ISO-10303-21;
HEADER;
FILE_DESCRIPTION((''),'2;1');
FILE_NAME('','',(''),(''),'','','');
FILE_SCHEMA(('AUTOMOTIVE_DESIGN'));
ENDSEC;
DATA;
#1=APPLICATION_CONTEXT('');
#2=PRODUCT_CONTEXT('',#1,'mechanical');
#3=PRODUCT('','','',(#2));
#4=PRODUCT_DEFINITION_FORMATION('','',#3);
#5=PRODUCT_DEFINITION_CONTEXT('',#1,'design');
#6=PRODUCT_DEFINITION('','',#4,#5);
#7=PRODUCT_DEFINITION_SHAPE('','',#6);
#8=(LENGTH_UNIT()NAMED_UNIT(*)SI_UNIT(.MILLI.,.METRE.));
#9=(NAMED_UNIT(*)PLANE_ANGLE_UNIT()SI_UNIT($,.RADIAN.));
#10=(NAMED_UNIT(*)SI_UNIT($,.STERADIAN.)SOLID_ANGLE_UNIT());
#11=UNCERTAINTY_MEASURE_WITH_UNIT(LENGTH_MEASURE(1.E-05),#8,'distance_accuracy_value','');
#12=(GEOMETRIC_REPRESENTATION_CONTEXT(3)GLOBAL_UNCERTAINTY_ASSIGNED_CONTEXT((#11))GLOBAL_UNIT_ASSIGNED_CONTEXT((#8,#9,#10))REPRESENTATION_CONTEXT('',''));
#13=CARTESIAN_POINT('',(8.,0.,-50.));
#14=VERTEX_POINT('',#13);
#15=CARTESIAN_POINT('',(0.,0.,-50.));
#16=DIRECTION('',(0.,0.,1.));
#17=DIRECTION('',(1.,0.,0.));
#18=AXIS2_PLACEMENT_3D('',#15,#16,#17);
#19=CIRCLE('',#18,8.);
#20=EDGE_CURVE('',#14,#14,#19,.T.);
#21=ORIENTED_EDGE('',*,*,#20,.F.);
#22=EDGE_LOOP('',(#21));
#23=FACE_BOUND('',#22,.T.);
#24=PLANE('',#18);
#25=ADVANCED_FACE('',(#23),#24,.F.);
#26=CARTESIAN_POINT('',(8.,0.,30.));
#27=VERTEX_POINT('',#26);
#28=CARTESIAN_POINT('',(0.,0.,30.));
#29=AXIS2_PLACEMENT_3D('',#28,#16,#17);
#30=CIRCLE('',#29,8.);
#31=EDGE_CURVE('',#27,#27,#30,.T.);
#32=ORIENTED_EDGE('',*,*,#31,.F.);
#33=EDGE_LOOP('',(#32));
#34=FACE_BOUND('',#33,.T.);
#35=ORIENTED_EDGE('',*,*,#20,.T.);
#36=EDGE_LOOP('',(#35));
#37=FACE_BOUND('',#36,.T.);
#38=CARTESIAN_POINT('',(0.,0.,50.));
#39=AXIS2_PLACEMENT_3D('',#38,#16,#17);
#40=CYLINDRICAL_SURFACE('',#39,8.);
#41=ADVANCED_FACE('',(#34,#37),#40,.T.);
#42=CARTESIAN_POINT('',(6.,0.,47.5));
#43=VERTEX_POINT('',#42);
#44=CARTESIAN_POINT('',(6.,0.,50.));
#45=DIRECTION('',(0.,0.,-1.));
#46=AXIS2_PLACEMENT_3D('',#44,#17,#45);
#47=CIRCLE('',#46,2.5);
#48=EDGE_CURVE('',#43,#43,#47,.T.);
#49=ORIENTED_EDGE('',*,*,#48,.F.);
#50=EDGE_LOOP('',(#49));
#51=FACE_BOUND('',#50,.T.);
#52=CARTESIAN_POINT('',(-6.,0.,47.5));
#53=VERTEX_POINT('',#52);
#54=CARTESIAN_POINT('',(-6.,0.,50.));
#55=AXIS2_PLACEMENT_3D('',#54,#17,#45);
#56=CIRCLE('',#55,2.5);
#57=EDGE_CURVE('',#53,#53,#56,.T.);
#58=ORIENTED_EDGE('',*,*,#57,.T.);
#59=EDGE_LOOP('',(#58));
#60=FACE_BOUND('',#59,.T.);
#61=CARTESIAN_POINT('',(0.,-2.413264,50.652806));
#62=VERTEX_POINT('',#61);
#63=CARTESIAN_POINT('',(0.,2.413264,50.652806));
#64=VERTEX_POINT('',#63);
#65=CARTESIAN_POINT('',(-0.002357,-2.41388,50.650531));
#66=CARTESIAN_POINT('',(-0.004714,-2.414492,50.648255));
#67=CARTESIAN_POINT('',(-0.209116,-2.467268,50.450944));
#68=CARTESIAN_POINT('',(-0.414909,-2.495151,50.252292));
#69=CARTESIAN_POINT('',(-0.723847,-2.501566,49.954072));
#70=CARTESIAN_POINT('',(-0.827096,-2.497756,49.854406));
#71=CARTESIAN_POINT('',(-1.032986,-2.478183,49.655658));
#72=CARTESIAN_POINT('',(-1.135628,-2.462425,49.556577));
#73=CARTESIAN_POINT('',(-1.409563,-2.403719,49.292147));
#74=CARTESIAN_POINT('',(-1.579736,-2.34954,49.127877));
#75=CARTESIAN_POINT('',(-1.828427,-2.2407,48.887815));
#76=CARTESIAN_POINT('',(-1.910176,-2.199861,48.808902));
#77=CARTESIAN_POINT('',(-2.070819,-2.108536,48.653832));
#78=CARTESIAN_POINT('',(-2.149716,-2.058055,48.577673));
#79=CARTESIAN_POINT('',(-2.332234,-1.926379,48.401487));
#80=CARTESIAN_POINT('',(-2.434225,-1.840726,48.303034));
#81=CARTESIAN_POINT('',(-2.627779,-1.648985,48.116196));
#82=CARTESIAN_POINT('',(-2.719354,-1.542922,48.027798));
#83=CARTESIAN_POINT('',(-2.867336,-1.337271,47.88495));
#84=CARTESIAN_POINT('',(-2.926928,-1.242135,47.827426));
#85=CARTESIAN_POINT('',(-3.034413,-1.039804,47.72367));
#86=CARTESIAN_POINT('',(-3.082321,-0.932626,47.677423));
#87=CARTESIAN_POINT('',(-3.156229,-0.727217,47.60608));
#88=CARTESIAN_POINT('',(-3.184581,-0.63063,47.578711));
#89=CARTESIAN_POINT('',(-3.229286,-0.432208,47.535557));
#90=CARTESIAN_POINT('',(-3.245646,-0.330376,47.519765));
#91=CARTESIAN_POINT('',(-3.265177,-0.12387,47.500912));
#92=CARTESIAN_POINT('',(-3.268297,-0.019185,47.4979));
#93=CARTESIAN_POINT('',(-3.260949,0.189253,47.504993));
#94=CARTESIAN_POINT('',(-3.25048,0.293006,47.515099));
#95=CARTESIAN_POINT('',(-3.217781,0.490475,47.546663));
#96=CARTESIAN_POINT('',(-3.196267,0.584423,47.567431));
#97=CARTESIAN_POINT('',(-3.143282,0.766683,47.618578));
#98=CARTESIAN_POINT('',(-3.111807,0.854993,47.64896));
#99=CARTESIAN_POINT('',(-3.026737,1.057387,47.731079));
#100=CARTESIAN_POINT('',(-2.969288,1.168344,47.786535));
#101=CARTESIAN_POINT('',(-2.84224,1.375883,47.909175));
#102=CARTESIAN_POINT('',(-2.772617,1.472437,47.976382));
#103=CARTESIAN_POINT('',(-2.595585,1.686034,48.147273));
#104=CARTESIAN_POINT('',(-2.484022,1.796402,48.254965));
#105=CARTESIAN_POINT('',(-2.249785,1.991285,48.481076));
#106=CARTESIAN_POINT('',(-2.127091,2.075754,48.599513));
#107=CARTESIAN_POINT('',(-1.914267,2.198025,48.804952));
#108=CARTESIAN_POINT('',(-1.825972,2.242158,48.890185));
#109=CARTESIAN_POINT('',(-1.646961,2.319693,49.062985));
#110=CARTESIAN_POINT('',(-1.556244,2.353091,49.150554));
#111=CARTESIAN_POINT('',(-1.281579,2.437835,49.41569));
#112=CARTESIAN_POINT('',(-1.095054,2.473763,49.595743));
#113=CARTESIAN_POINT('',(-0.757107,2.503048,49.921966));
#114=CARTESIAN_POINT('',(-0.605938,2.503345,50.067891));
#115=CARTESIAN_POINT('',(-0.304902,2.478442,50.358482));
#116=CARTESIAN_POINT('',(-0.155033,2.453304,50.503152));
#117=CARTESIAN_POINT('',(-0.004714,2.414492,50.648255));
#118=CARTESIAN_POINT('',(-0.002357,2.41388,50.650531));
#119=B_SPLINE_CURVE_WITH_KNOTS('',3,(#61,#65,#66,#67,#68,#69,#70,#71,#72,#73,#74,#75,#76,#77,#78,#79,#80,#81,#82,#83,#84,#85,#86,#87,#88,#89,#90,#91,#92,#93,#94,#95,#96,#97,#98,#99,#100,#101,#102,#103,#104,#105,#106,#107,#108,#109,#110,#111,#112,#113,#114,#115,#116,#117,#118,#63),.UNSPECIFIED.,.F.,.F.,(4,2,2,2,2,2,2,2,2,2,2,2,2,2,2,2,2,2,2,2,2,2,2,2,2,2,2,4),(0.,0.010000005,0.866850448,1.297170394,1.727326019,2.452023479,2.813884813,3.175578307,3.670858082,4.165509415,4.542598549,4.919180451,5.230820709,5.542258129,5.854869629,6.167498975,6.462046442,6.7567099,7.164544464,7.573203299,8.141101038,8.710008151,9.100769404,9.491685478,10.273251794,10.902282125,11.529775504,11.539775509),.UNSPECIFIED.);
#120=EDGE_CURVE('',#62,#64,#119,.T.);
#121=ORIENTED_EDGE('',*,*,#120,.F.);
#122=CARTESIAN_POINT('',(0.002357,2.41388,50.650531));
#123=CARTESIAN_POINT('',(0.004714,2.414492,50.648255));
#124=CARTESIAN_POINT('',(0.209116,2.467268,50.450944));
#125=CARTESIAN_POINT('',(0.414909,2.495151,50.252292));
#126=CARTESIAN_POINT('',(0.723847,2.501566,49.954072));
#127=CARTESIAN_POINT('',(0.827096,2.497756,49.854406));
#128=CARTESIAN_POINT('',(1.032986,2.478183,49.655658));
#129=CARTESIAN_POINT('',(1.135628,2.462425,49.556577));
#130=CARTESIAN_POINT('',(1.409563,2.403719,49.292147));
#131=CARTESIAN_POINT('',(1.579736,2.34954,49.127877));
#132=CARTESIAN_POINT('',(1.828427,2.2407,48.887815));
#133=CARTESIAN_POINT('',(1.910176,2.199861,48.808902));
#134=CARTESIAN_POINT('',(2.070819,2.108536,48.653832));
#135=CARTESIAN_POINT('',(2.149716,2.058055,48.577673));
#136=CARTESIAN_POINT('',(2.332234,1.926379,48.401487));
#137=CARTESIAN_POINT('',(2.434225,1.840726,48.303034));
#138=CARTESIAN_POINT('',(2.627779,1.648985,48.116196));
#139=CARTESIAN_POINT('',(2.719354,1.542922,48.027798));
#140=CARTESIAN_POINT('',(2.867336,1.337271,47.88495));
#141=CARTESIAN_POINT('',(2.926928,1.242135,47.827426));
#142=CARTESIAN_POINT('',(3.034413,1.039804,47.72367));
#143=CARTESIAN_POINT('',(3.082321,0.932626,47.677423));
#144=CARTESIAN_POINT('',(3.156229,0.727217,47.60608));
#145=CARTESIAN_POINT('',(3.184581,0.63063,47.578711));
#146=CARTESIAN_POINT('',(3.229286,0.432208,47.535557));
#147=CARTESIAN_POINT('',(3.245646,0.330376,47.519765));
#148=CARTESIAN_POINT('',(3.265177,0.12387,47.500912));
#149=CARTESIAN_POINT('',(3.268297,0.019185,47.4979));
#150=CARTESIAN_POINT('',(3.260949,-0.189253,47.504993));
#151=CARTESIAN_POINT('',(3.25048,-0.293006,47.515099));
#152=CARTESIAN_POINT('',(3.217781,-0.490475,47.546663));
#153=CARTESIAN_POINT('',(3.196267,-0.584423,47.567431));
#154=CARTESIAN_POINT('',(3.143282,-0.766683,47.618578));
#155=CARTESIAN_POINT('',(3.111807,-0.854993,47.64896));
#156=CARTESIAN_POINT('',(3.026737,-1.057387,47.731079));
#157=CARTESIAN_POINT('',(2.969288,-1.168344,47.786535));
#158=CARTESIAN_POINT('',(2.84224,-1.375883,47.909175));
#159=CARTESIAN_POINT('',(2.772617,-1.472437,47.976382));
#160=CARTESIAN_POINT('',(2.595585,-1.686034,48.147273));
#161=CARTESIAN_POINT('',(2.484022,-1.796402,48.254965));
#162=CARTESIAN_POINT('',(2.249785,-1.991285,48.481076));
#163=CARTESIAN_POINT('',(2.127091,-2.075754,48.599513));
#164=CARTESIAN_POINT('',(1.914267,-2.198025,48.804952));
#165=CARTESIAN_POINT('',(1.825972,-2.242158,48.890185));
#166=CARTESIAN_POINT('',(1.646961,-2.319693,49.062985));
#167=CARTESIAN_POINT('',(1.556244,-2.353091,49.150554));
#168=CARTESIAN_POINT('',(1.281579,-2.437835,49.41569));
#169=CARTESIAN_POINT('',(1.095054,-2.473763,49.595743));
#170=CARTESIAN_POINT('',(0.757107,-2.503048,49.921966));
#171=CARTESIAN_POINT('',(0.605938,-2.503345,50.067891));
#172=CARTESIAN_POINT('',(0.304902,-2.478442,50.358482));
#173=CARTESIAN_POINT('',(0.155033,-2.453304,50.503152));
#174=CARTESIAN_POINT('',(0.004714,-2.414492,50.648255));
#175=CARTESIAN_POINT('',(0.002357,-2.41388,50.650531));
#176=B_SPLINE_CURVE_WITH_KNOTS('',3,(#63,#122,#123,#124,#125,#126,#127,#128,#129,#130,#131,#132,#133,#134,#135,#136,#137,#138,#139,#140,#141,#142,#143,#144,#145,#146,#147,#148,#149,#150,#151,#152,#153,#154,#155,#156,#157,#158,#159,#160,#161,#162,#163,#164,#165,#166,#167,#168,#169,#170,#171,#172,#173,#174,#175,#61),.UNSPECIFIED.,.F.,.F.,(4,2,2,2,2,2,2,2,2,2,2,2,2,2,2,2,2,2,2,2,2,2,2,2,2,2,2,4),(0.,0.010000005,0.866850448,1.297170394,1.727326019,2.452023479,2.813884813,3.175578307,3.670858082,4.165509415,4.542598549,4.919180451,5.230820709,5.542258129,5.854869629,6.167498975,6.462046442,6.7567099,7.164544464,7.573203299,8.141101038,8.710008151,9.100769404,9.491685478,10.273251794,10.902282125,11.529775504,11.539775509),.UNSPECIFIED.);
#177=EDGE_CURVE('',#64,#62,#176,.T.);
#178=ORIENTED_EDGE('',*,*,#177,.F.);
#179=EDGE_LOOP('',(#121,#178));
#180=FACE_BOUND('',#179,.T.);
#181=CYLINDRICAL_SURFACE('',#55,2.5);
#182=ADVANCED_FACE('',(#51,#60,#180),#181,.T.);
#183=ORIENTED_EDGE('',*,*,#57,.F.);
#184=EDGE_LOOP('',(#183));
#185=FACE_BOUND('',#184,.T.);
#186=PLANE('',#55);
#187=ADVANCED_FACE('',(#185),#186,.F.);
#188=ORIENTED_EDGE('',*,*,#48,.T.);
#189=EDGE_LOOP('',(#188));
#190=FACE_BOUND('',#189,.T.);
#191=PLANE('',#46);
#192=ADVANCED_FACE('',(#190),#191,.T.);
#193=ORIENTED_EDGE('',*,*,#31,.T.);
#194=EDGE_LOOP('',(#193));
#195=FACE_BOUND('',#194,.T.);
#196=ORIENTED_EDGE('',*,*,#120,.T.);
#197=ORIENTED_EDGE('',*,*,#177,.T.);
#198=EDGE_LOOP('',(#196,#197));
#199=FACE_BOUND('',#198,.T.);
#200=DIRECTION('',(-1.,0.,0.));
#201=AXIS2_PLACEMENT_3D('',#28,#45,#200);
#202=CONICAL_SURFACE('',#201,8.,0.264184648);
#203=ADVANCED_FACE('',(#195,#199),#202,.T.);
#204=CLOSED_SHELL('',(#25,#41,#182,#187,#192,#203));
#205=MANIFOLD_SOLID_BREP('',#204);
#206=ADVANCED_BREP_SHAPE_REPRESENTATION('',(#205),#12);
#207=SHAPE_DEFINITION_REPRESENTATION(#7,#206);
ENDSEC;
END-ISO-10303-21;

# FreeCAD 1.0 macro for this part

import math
import FreeCAD as App
import Part
import Sketcher
from FreeCAD import Vector

doc = App.newDocument("Part")
body = doc.addObject("PartDesign::Body", "Body")

# Sketch on YZ plane
sketch1 = body.newObject("Sketcher::SketchObject", "Sketch")
sketch1.AttachmentSupport = (doc.getObject("YZ_Plane"), [""])
sketch1.MapMode = "FlatFace"
sketch1.addGeometry([
    Part.LineSegment(Vector(0, -50, 0), Vector(8, -50, 0)),  # 0
    Part.LineSegment(Vector(8, -50, 0), Vector(8, 30, 0)),  # 1
    Part.LineSegment(Vector(8, 30, 0), Vector(2.4, 50.7, 0)),  # 2
    Part.ArcOfCircle(Part.Circle(Vector(0, 50, 0), Vector(0, 0, 1), 2.5), math.radians(15), math.radians(90)),  # 3
    Part.LineSegment(Vector(0, 52.5, 0), Vector(0, -50, 0)),  # 4
], False)
sketch1.addConstraint([
    Sketcher.Constraint("Coincident", 0, 2, 1, 1),
    Sketcher.Constraint("Coincident", 1, 2, 2, 1),
    Sketcher.Constraint("Tangent", 2, 2, 3, 1),
    Sketcher.Constraint("Coincident", 3, 2, 4, 1),
    Sketcher.Constraint("Coincident", 4, 2, 0, 1),
    Sketcher.Constraint("Horizontal", 0),
    Sketcher.Constraint("Vertical", 1),
    Sketcher.Constraint("Vertical", 4),
    Sketcher.Constraint("PointOnObject", 3, 3, -2),
    Sketcher.Constraint("PointOnObject", 3, 2, -2),
    Sketcher.Constraint("Radius", 3, 2.5),
    Sketcher.Constraint("DistanceX", 0, 1, 0, 2, 8.0),
    Sketcher.Constraint("DistanceY", 1, 1, 1, 2, 80.0),
    Sketcher.Constraint("DistanceY", 4, 2, 4, 1, 102.5),
    Sketcher.Constraint("DistanceY", -1, 1, 3, 3, 50.0),
])
revolution = body.newObject("PartDesign::Revolution", "Revolution")
revolution.Profile = sketch1
revolution.ReferenceAxis = (sketch1, ["V_Axis"])
revolution.Angle = 360

# Sketch on YZ plane
sketch2 = body.newObject("Sketcher::SketchObject", "Sketch001")
sketch2.AttachmentSupport = (doc.getObject("YZ_Plane"), [""])
sketch2.MapMode = "FlatFace"
sketch2.addGeometry(Part.Circle(Vector(0, 50, 0), Vector(0, 0, 1), 2.5), False)
sketch2.addConstraint([
    Sketcher.Constraint("PointOnObject", 0, 3, -2),
    Sketcher.Constraint("Diameter", 0, 5.0),
    Sketcher.Constraint("DistanceY", -1, 1, 0, 3, 50.0),
])
pad1 = body.newObject("PartDesign::Pad", "Pad")
pad1.Profile = sketch2
pad1.Type = "TwoLengths"
pad1.Length = 6
pad1.Length2 = 6

doc.recompute()
